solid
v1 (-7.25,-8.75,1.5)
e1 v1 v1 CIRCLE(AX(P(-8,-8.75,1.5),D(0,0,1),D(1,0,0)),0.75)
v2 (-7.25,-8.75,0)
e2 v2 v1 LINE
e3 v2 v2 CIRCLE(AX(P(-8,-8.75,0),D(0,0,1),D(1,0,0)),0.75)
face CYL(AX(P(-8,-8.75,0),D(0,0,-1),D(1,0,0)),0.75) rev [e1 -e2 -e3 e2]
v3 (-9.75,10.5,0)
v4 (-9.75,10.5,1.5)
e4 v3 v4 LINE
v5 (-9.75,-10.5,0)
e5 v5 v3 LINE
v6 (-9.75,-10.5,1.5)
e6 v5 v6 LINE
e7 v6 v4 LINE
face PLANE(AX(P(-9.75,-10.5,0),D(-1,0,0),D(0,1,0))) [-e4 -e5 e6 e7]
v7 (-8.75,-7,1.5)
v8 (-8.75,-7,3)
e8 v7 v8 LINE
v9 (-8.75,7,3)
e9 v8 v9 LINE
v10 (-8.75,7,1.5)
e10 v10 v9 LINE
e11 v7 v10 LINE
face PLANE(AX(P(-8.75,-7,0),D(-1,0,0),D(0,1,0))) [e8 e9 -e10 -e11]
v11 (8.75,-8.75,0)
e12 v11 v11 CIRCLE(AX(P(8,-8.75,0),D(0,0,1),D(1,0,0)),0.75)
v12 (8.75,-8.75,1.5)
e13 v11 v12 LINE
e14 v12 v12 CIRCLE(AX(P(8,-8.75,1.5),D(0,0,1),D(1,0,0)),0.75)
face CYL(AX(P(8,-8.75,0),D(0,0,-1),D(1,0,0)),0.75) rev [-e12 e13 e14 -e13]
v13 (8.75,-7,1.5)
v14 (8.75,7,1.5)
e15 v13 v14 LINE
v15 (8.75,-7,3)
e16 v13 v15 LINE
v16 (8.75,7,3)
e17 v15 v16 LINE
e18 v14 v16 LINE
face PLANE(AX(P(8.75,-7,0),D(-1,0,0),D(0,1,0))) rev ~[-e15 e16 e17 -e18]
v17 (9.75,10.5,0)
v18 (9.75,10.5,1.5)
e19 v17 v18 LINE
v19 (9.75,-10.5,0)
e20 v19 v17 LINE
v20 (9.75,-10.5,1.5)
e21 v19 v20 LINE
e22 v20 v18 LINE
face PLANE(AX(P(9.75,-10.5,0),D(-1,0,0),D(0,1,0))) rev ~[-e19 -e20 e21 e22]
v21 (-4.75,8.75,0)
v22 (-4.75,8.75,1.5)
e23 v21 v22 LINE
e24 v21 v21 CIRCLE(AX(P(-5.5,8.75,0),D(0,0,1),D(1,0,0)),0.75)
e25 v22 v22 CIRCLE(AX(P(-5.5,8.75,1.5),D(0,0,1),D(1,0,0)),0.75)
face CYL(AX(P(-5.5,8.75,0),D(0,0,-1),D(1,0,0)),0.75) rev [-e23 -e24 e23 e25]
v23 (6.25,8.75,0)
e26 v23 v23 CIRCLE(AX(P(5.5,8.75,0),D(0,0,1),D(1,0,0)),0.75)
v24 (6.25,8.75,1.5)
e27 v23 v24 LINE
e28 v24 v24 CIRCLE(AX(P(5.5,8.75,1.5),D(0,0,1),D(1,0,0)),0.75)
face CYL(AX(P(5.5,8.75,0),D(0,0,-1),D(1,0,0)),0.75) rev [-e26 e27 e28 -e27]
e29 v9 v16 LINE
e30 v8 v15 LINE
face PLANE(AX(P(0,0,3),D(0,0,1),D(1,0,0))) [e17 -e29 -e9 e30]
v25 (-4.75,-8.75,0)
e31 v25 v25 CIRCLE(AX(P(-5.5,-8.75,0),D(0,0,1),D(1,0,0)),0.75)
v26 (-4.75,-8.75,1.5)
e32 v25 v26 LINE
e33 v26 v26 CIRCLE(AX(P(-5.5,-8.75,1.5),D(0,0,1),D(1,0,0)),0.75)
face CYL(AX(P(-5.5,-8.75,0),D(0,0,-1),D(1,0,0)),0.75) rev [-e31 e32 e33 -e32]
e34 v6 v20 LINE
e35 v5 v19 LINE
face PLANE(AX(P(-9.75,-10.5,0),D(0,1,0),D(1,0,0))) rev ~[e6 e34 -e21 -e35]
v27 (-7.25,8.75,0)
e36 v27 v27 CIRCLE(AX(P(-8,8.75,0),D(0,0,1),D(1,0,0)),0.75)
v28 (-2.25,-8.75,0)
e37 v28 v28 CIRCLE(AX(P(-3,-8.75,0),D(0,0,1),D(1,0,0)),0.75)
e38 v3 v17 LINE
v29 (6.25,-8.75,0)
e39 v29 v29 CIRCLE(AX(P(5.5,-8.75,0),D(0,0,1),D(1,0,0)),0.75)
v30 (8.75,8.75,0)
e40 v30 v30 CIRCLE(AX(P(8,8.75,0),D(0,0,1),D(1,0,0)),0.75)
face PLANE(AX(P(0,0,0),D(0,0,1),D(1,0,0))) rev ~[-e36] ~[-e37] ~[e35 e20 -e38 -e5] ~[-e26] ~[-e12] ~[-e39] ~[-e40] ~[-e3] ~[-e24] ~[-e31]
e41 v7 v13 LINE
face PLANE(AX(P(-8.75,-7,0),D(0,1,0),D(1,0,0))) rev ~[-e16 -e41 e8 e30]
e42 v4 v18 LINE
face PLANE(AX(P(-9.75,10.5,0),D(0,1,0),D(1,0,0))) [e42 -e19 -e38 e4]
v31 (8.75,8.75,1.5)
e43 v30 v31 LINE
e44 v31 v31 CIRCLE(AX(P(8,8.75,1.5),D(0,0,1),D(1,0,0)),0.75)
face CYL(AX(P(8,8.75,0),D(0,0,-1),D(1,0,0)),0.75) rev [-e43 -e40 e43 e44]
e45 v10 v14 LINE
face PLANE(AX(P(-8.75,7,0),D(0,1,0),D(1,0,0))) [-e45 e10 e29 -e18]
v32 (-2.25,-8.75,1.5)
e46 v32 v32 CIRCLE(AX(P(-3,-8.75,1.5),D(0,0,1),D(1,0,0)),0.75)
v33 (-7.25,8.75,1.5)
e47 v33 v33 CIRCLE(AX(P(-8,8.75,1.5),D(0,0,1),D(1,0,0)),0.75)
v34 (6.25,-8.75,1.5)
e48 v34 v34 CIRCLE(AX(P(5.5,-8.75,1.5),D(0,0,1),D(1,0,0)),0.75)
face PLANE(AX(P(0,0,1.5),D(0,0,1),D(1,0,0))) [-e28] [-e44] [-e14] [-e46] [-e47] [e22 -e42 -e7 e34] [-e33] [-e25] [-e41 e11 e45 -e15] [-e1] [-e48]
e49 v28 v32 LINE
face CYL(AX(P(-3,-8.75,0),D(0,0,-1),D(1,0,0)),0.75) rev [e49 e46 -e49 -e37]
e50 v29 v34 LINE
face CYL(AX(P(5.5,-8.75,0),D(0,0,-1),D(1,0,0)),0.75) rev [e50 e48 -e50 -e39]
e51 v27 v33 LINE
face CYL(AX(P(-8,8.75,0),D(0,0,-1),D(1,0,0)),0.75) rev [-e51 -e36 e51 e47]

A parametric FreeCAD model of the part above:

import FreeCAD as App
import Part
import Sketcher

V = App.Vector

doc = App.newDocument("Part")
body = doc.addObject("PartDesign::Body", "Body")

# Sketch on XY plane
sketch1 = body.newObject("Sketcher::SketchObject", "Sketch")
sketch1.AttachmentSupport = (doc.getObject("XY_Plane"), [""])
sketch1.MapMode = "FlatFace"
sketch1.addGeometry(Part.LineSegment(V(-9.8, 10.5, 0), V(-9.8, -10.5, 0)), False)
sketch1.addGeometry(Part.LineSegment(V(-9.8, -10.5, 0), V(9.8, -10.5, 0)), False)
sketch1.addGeometry(Part.LineSegment(V(9.8, -10.5, 0), V(9.8, 10.5, 0)), False)
sketch1.addGeometry(Part.LineSegment(V(9.8, 10.5, 0), V(-9.8, 10.5, 0)), False)
sketch1.addGeometry(Part.Circle(V(-8, -8.8, 0), V(0, 0, 1), 0.8), False)
sketch1.addGeometry(Part.Circle(V(-5.5, -8.8, 0), V(0, 0, 1), 0.8), False)
sketch1.addGeometry(Part.Circle(V(-3, -8.8, 0), V(0, 0, 1), 0.8), False)
sketch1.addGeometry(Part.Circle(V(5.5, -8.8, 0), V(0, 0, 1), 0.8), False)
sketch1.addGeometry(Part.Circle(V(8, -8.8, 0), V(0, 0, 1), 0.8), False)
sketch1.addGeometry(Part.Circle(V(-8, 8.8, 0), V(0, 0, 1), 0.8), False)
sketch1.addGeometry(Part.Circle(V(-5.5, 8.8, 0), V(0, 0, 1), 0.8), False)
sketch1.addGeometry(Part.LineSegment(V(8.8, -7, 0), V(-8.8, -7, 0)), False)
sketch1.addGeometry(Part.LineSegment(V(-8.8, -7, 0), V(-8.8, 7, 0)), False)
sketch1.addGeometry(Part.LineSegment(V(-8.8, 7, 0), V(8.8, 7, 0)), False)
sketch1.addGeometry(Part.LineSegment(V(8.8, 7, 0), V(8.8, -7, 0)), False)
sketch1.addGeometry(Part.Circle(V(5.5, 8.8, 0), V(0, 0, 1), 0.8), False)
sketch1.addGeometry(Part.Circle(V(8, 8.8, 0), V(0, 0, 1), 0.8), False)
sketch1.addConstraint(Sketcher.Constraint("Coincident", 0, 2, 1, 1))
sketch1.addConstraint(Sketcher.Constraint("Coincident", 1, 2, 2, 1))
sketch1.addConstraint(Sketcher.Constraint("Coincident", 2, 2, 3, 1))
sketch1.addConstraint(Sketcher.Constraint("Coincident", 3, 2, 0, 1))
sketch1.addConstraint(Sketcher.Constraint("Coincident", 11, 2, 12, 1))
sketch1.addConstraint(Sketcher.Constraint("Coincident", 12, 2, 13, 1))
sketch1.addConstraint(Sketcher.Constraint("Coincident", 13, 2, 14, 1))
sketch1.addConstraint(Sketcher.Constraint("Coincident", 14, 2, 11, 1))
sketch1.addConstraint(Sketcher.Constraint("Vertical", 0))
sketch1.addConstraint(Sketcher.Constraint("Horizontal", 1))
sketch1.addConstraint(Sketcher.Constraint("Vertical", 2))
sketch1.addConstraint(Sketcher.Constraint("Horizontal", 3))
sketch1.addConstraint(Sketcher.Constraint("Horizontal", 11))
sketch1.addConstraint(Sketcher.Constraint("Vertical", 12))
sketch1.addConstraint(Sketcher.Constraint("Horizontal", 13))
sketch1.addConstraint(Sketcher.Constraint("Vertical", 14))
sketch1.addConstraint(Sketcher.Constraint("Equal", 4, 5))
sketch1.addConstraint(Sketcher.Constraint("Equal", 5, 6))
sketch1.addConstraint(Sketcher.Constraint("Equal", 6, 7))
sketch1.addConstraint(Sketcher.Constraint("Equal", 7, 8))
sketch1.addConstraint(Sketcher.Constraint("Equal", 8, 9))
sketch1.addConstraint(Sketcher.Constraint("Equal", 9, 10))
sketch1.addConstraint(Sketcher.Constraint("Equal", 10, 15))
sketch1.addConstraint(Sketcher.Constraint("Equal", 15, 16))
sketch1.addConstraint(Sketcher.Constraint("Symmetric", 8, 3, 9, 3, -1, 1))
sketch1.addConstraint(Sketcher.Constraint("Symmetric", 7, 3, 10, 3, -1, 1))
sketch1.addConstraint(Sketcher.Constraint("Symmetric", 5, 3, 15, 3, -1, 1))
sketch1.addConstraint(Sketcher.Constraint("Symmetric", 4, 3, 16, 3, -1, 1))
sketch1.addConstraint(Sketcher.Constraint("Symmetric", 0, 2, 2, 2, -1, 1))
sketch1.addConstraint(Sketcher.Constraint("Symmetric", 11, 2, 13, 2, -1, 1))
sketch1.addConstraint(Sketcher.Constraint("Symmetric", 5, 3, 7, 3, -2))
sketch1.addConstraint(Sketcher.Constraint("Symmetric", 4, 3, 8, 3, -2))
sketch1.addConstraint(Sketcher.Constraint("Horizontal", 4, 3, 5, 3))
sketch1.addConstraint(Sketcher.Constraint("Horizontal", 5, 3, 6, 3))
sketch1.addConstraint(Sketcher.Constraint("Diameter", 4, 1.5))
sketch1.addConstraint(Sketcher.Constraint("DistanceY", 0, 2, 0, 1, 21.0))
sketch1.addConstraint(Sketcher.Constraint("DistanceY", 12, 1, 12, 2, 14.0))
sketch1.addConstraint(Sketcher.Constraint("DistanceX", 1, 1, 1, 2, 19.5))
sketch1.addConstraint(Sketcher.Constraint("DistanceX", 11, 2, 11, 1, 17.5))
sketch1.addConstraint(Sketcher.Constraint("DistanceX", 4, 3, -1, 1, 8.0))
sketch1.addConstraint(Sketcher.Constraint("DistanceX", 6, 3, -1, 1, 3.0))
sketch1.addConstraint(Sketcher.Constraint("DistanceX", 5, 3, 7, 3, 11.0))
sketch1.addConstraint(Sketcher.Constraint("DistanceY", 4, 3, 9, 3, 17.5))
pad1 = body.newObject("PartDesign::Pad", "Pad")
pad1.Profile = sketch1
pad1.Length = 1.5

# Sketch on XY plane
sketch2 = body.newObject("Sketcher::SketchObject", "Sketch001")
sketch2.AttachmentSupport = (doc.getObject("XY_Plane"), [""])
sketch2.MapMode = "FlatFace"
sketch2.addGeometry(Part.LineSegment(V(-9, 7, 0), V(-9, -7, 0)), False)
sketch2.addGeometry(Part.LineSegment(V(-9, -7, 0), V(9, -7, 0)), False)
sketch2.addGeometry(Part.LineSegment(V(9, -7, 0), V(9, 7, 0)), False)
sketch2.addGeometry(Part.LineSegment(V(9, 7, 0), V(-9, 7, 0)), False)
sketch2.addConstraint(Sketcher.Constraint("Coincident", 0, 2, 1, 1))
sketch2.addConstraint(Sketcher.Constraint("Coincident", 1, 2, 2, 1))
sketch2.addConstraint(Sketcher.Constraint("Coincident", 2, 2, 3, 1))
sketch2.addConstraint(Sketcher.Constraint("Coincident", 3, 2, 0, 1))
sketch2.addConstraint(Sketcher.Constraint("Vertical", 0))
sketch2.addConstraint(Sketcher.Constraint("Horizontal", 1))
sketch2.addConstraint(Sketcher.Constraint("Vertical", 2))
sketch2.addConstraint(Sketcher.Constraint("Horizontal", 3))
sketch2.addConstraint(Sketcher.Constraint("Symmetric", 0, 2, 2, 2, -1, 1))
sketch2.addConstraint(Sketcher.Constraint("DistanceY", 0, 2, 0, 1, 14.0))
sketch2.addConstraint(Sketcher.Constraint("DistanceX", 1, 1, 1, 2, 17.5))
pad2 = body.newObject("PartDesign::Pad", "Pad001")
pad2.Profile = sketch2
pad2.Length = 3

doc.recompute()
